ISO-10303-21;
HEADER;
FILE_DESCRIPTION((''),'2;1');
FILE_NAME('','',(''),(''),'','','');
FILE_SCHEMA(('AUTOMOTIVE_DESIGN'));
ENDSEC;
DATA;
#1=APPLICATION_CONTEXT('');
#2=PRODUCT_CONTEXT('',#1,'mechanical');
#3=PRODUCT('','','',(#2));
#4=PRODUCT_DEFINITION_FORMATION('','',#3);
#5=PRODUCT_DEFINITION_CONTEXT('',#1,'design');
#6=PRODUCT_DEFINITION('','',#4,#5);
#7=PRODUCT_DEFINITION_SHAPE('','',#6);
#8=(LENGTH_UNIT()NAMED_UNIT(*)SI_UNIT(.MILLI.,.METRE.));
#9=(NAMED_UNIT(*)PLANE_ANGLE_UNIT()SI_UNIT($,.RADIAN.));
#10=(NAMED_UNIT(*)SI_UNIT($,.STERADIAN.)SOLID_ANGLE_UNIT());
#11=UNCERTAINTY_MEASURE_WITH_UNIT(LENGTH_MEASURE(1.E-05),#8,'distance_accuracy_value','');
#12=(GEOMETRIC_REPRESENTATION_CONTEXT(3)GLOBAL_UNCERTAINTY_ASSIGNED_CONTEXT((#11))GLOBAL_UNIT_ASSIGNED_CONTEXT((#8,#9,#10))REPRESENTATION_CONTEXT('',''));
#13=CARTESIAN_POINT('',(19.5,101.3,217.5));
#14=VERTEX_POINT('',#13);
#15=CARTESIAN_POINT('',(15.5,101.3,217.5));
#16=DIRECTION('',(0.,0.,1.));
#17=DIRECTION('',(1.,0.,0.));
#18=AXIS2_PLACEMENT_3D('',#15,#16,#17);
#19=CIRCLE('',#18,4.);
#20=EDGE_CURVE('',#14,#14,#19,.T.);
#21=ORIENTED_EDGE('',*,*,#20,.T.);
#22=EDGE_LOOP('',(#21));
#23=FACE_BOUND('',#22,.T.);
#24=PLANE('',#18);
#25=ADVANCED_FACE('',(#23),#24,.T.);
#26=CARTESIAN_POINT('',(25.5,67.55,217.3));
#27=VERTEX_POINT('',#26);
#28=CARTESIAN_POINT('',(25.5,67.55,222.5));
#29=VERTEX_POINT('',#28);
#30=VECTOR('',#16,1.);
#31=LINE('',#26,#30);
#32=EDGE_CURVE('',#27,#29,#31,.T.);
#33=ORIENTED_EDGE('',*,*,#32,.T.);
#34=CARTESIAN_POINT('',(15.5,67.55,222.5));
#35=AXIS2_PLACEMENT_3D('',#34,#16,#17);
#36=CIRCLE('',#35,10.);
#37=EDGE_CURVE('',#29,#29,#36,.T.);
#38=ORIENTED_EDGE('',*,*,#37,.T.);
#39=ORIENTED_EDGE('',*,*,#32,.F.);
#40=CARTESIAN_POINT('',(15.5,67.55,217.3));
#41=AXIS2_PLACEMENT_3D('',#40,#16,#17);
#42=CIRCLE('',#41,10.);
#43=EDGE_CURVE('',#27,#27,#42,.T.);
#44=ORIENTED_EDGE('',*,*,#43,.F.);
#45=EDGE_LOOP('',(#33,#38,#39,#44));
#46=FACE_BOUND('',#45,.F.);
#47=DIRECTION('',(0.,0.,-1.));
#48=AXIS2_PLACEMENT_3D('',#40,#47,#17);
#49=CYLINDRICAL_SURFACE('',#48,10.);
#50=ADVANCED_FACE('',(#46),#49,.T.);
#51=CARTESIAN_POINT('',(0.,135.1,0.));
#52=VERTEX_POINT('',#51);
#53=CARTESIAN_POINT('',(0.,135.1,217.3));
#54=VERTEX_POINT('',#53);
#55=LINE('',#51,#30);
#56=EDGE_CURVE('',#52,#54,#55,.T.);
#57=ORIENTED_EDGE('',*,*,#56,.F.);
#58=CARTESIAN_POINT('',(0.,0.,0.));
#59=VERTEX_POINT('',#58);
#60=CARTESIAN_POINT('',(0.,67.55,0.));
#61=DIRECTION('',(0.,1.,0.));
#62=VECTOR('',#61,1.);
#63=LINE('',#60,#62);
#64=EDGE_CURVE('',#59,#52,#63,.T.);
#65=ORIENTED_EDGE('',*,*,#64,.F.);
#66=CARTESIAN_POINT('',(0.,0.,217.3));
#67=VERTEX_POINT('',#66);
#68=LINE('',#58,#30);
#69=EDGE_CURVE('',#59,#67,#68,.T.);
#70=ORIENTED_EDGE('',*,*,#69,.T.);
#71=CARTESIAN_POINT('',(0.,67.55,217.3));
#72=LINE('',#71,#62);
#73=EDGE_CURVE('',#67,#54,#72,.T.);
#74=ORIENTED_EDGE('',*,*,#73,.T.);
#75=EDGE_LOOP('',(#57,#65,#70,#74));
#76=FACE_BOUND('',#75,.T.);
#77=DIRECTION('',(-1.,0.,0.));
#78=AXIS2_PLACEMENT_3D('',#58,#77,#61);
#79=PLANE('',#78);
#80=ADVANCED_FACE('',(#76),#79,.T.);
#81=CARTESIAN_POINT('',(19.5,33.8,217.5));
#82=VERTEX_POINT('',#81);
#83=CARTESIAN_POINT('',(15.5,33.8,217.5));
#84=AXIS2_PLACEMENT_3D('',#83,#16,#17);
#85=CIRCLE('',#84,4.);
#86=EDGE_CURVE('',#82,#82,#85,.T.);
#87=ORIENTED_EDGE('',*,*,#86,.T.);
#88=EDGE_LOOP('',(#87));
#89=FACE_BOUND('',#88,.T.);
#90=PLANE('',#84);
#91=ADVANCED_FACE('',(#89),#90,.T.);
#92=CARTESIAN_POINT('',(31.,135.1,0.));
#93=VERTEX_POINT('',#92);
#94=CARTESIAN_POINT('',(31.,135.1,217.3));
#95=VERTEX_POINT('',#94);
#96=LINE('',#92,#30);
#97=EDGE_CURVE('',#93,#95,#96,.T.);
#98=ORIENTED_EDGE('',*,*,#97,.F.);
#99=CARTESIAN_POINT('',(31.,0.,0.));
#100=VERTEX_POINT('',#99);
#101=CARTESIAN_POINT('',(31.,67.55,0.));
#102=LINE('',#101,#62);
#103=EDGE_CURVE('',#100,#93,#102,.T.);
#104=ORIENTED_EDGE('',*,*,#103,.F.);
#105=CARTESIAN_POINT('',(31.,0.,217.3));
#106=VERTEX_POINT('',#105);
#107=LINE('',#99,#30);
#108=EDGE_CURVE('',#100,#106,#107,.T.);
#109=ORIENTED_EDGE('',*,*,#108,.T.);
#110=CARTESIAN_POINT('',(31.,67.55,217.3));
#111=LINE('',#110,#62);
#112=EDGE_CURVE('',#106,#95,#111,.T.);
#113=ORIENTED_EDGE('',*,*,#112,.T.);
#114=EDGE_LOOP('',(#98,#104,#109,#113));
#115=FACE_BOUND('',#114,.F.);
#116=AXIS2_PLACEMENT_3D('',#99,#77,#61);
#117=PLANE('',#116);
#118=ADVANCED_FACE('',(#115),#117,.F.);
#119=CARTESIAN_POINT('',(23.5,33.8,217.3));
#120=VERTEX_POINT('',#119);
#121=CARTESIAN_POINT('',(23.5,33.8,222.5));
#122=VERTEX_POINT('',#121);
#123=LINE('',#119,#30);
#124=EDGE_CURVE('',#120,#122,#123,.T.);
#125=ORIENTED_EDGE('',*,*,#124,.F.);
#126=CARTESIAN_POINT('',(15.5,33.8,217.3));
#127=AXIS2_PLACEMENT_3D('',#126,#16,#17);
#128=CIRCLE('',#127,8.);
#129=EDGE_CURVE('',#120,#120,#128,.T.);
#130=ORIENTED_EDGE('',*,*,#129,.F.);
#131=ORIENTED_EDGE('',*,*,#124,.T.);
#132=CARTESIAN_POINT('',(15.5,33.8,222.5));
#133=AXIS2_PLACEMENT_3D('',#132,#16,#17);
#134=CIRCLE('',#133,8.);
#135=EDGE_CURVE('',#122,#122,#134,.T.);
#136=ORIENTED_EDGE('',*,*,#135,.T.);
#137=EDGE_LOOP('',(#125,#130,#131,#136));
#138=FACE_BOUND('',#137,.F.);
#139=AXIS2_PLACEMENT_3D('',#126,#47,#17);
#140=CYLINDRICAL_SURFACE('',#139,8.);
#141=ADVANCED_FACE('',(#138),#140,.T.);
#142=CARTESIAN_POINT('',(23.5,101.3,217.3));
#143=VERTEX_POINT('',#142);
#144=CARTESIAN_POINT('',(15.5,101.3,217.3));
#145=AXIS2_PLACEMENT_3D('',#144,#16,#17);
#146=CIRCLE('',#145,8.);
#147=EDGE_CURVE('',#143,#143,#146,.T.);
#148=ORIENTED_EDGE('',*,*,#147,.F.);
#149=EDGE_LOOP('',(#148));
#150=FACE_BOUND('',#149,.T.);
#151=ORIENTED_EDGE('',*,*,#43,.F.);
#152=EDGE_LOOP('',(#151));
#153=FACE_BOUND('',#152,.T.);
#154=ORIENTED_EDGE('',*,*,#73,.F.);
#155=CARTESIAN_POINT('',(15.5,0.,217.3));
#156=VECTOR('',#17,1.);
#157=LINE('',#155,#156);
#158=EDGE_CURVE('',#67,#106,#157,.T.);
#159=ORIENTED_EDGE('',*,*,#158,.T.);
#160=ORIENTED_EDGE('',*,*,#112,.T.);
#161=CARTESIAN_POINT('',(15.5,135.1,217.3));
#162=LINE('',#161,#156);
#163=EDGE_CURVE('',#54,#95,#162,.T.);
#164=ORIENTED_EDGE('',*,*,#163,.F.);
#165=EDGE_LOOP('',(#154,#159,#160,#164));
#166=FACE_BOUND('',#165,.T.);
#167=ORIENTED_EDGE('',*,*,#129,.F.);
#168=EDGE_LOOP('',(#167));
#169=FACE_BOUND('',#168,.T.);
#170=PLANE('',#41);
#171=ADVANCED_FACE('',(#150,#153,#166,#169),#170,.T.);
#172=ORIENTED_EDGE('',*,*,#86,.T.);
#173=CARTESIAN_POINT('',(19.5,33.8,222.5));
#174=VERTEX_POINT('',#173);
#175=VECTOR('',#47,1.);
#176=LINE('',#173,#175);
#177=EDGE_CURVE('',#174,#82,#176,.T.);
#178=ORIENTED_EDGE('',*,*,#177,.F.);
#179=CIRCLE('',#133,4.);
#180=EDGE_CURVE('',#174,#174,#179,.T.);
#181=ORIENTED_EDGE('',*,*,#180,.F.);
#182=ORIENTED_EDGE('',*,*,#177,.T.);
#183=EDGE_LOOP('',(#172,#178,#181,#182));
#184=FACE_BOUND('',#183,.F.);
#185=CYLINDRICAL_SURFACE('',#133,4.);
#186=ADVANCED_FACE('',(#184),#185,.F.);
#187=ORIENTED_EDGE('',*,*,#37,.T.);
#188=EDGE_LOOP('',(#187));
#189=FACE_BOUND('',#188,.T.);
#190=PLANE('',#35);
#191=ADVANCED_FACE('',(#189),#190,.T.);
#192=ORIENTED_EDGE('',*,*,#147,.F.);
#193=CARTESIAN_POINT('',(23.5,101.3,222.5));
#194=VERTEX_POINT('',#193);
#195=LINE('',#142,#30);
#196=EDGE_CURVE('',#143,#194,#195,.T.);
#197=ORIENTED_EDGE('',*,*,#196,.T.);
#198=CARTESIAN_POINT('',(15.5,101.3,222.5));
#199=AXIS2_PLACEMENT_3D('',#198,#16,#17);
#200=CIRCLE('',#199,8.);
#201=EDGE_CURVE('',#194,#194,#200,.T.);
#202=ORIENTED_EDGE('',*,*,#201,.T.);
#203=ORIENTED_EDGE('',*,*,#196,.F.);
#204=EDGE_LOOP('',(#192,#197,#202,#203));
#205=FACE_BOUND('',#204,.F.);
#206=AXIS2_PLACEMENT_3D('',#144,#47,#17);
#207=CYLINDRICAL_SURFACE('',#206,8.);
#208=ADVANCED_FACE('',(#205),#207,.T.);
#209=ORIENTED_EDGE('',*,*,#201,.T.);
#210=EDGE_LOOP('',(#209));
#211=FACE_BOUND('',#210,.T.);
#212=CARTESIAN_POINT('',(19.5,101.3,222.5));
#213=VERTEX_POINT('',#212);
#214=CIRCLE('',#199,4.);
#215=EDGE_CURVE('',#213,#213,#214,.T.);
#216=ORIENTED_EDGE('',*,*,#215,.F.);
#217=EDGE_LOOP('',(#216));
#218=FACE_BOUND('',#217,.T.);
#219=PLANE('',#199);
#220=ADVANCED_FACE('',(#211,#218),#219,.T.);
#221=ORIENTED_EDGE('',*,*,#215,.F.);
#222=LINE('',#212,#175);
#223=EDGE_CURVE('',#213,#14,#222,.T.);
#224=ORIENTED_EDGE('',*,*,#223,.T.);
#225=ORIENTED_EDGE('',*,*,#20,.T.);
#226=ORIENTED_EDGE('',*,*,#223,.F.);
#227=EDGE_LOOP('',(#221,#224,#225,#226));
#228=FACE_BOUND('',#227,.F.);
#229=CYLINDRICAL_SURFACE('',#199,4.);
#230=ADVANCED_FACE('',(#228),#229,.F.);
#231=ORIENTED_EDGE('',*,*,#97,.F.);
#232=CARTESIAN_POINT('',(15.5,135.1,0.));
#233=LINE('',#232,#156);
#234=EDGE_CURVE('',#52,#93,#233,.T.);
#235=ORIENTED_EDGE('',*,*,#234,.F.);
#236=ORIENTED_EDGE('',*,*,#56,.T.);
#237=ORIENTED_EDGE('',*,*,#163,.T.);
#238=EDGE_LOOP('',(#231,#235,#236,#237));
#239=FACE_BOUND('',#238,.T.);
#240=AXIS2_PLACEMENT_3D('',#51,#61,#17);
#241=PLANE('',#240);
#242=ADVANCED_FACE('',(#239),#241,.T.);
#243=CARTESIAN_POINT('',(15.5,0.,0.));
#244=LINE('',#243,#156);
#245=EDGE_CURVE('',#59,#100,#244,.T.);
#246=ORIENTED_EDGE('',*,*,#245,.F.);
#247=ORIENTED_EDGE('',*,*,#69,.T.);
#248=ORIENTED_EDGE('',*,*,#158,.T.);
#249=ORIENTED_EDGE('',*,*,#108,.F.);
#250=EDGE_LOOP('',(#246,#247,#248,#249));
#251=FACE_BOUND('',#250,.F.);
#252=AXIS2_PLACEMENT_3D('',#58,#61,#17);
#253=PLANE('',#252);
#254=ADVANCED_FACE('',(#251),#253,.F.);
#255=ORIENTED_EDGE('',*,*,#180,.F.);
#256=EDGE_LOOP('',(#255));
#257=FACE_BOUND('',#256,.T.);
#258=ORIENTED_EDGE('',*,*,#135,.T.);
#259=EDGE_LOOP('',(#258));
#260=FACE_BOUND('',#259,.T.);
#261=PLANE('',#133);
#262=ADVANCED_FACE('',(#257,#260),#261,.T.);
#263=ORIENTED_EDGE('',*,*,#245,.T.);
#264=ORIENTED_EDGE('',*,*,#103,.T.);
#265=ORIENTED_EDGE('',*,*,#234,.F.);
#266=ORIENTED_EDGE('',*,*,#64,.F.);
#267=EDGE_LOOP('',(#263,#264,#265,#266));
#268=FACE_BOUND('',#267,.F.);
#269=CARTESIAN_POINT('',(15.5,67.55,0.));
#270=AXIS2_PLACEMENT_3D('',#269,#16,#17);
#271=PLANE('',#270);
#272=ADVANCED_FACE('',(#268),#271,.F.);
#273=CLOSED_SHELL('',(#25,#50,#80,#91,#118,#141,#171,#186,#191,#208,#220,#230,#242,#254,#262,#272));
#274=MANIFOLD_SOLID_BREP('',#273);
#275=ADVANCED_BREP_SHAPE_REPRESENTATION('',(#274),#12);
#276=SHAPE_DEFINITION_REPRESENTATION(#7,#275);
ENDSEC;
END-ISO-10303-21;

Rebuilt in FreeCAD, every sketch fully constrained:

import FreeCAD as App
import Part
import Sketcher

V = App.Vector


def add_polygon(sketch, points):
    """Adds a closed chain of lines whose ends are joined by coincident constraints."""
    first, n = sketch.GeometryCount, len(points)
    for a, b in zip(points, points[1:] + points[:1]):
        sketch.addGeometry(Part.LineSegment(App.Vector(*a, 0), App.Vector(*b, 0)), False)
    for i in range(n):
        sketch.addConstraint(Sketcher.Constraint("Coincident", first + i, 2, first + (i + 1) % n, 1))

doc = App.newDocument("Part")
params = doc.addObject("Spreadsheet::Sheet", "Params")
for row, (alias, value) in enumerate([
    ("sketch1_width", "31 mm"),
    ("sketch1_height", "135.1 mm"),
    ("pad1_length", "217.3 mm"),
    ("sketch2_diameter", "16 mm"),
    ("sketch2_diameter2", "20 mm"),
    ("pad2_length", "5.2 mm"),
    ("sketch3_diameter", "8 mm"),
    ("pocket1_length", "5 mm"),
], start=1):
    params.set(f"A{row}", alias)
    params.set(f"B{row}", "=" + value)
    params.setAlias(f"B{row}", alias)

body = doc.addObject("PartDesign::Body", "Body")

sketch1 = body.newObject("Sketcher::SketchObject", "Sketch")
sketch1.AttachmentSupport = (doc.getObject("XY_Plane"), [""])
sketch1.MapMode = "FlatFace"
add_polygon(sketch1, [(0, 135), (0, 0), (31, 0), (31, 135)])
sketch1.addConstraint([
    Sketcher.Constraint("Vertical", 0),
    Sketcher.Constraint("Horizontal", 1),
    Sketcher.Constraint("Vertical", 2),
    Sketcher.Constraint("Horizontal", 3),
    Sketcher.Constraint("Coincident", 0, 2, -1, 1),
    Sketcher.Constraint("DistanceX", 1, 1, 1, 2, 31.0),
    Sketcher.Constraint("DistanceY", 0, 2, 0, 1, 135.1),
])
sketch1.setExpression("Constraints[9]", "Params.sketch1_width")
sketch1.setExpression("Constraints[10]", "Params.sketch1_height")
pad1 = body.newObject("PartDesign::Pad", "Pad")
pad1.Profile = sketch1
pad1.setExpression("Length", "Params.pad1_length")

sketch2 = body.newObject("Sketcher::SketchObject", "Sketch001")
sketch2.AttachmentSupport = (doc.getObject("XY_Plane"), [""])
sketch2.MapMode = "FlatFace"
sketch2.AttachmentOffset = App.Placement(V(0, 0, 217.3), App.Rotation())
sketch2.addGeometry([
    Part.Circle(V(16, 34, 0), V(0, 0, 1), 8),
    Part.Circle(V(16, 68, 0), V(0, 0, 1), 10),
    Part.Circle(V(16, 101, 0), V(0, 0, 1), 8),
], False)
sketch2.addConstraint([
    Sketcher.Constraint("Equal", 0, 2),
    Sketcher.Constraint("Vertical", 0, 3, 1, 3),
    Sketcher.Constraint("Vertical", 1, 3, 2, 3),
    Sketcher.Constraint("Diameter", 0, 16.0),
    Sketcher.Constraint("Diameter", 1, 20.0),
    Sketcher.Constraint("DistanceX", -1, 1, 0, 3, 15.5),
    Sketcher.Constraint("DistanceY", -1, 1, 0, 3, 33.8),
    Sketcher.Constraint("DistanceY", -1, 1, 2, 3, 101.3),
    Sketcher.Constraint("DistanceY", -1, 1, 1, 3, 67.55),
])
sketch2.setExpression("Constraints[3]", "Params.sketch2_diameter")
sketch2.setExpression("Constraints[4]", "Params.sketch2_diameter2")
pad2 = body.newObject("PartDesign::Pad", "Pad001")
pad2.Profile = sketch2
pad2.setExpression("Length", "Params.pad2_length")

sketch3 = body.newObject("Sketcher::SketchObject", "Sketch002")
sketch3.AttachmentSupport = (doc.getObject("XY_Plane"), [""])
sketch3.MapMode = "FlatFace"
sketch3.AttachmentOffset = App.Placement(V(0, 0, 222.5), App.Rotation())
sketch3.addGeometry([
    Part.Circle(V(15.5, 101.3, 0), V(0, 0, 1), 4),
    Part.Circle(V(15.5, 33.8, 0), V(0, 0, 1), 4),
], False)
sketch3.addConstraint([
    Sketcher.Constraint("Equal", 0, 1),
    Sketcher.Constraint("Vertical", 0, 3, 1, 3),
    Sketcher.Constraint("Diameter", 0, 8.0),
    Sketcher.Constraint("DistanceX", -1, 1, 0, 3, 15.5),
    Sketcher.Constraint("DistanceY", -1, 1, 0, 3, 101.3),
    Sketcher.Constraint("DistanceY", -1, 1, 1, 3, 33.8),
])
sketch3.setExpression("Constraints[2]", "Params.sketch3_diameter")
pocket1 = body.newObject("PartDesign::Pocket", "Pocket")
pocket1.Profile = sketch3
pocket1.setExpression("Length", "Params.pocket1_length")

doc.recompute()
